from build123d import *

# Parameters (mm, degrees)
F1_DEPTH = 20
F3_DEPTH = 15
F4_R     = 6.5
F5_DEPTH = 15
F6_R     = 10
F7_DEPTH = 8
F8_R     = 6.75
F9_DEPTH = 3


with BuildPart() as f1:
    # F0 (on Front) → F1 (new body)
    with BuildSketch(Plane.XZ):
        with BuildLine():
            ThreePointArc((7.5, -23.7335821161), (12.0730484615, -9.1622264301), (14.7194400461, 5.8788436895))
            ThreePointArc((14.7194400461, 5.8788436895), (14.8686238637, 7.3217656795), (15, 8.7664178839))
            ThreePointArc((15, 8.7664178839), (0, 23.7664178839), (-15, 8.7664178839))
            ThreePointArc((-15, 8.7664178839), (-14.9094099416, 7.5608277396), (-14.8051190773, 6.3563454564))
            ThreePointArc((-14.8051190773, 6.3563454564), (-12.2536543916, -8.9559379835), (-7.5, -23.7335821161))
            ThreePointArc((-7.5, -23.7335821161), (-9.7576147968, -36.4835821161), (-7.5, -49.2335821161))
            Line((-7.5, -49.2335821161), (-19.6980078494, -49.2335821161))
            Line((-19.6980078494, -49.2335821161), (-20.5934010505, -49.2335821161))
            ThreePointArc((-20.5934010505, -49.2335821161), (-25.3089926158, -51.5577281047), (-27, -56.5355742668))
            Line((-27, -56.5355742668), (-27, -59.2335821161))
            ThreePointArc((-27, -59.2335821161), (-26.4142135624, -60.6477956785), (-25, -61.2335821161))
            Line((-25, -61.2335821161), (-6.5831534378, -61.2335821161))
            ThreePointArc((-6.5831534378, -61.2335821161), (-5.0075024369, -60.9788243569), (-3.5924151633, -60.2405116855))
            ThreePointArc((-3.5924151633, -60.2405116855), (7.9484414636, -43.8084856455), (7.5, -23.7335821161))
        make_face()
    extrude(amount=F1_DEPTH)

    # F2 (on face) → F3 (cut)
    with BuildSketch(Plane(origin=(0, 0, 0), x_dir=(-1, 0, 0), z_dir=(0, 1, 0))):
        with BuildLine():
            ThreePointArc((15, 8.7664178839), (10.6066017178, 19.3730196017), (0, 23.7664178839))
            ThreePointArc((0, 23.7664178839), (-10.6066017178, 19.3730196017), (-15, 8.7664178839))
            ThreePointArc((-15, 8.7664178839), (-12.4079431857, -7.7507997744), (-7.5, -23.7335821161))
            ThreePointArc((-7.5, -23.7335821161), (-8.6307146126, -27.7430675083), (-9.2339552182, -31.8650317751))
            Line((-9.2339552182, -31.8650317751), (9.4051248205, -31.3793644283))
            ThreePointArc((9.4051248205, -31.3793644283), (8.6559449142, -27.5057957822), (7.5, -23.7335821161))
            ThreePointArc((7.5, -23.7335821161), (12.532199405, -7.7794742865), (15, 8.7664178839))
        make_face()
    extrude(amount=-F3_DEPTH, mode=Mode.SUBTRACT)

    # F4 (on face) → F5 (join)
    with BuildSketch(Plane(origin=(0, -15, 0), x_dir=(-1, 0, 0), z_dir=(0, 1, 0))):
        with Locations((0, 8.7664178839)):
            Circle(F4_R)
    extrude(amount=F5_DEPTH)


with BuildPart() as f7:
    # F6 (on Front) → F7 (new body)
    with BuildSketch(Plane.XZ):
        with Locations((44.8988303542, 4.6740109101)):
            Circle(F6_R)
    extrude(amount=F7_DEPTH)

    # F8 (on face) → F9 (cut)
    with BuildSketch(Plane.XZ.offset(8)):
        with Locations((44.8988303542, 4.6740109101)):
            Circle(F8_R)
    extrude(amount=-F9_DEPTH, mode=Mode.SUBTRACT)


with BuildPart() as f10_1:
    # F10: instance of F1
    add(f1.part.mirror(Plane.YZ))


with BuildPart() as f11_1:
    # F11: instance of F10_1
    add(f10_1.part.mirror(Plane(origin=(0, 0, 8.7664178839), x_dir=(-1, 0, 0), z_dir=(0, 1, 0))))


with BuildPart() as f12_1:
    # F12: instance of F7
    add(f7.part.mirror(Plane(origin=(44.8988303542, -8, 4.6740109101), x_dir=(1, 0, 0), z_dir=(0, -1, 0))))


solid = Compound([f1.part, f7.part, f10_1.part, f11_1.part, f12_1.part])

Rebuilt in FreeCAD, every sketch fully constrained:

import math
import FreeCAD as App
import Part
import Sketcher

V = App.Vector
Q = App.Units.Quantity

doc = App.newDocument("Part")
body = doc.addObject("PartDesign::Body", "Body")

sketch1 = body.newObject("Sketcher::SketchObject", "Sketch")
sketch1.AttachmentSupport = (doc.getObject("XZ_Plane"), [""])
sketch1.MapMode = "FlatFace"
sketch1.addGeometry([
    Part.ArcOfCircle(Part.Circle(V(-102.193246, 18.695629, 0), V(0, 0, 1), 117.613121), math.radians(-21.146408), math.radians(-6.256181)),
    Part.ArcOfCircle(Part.Circle(V(-102.193245, 18.695628, 0), V(0, 0, 1), 117.61312), math.radians(-6.256181), math.radians(-4.842825)),
    Part.ArcOfCircle(Part.Circle(V(0, 8.766418, 0), V(0, 0, 1), 15), math.radians(0), math.radians(180)),
    Part.ArcOfCircle(Part.Circle(V(91.081377, 16.131351, 0), V(0, 0, 1), 106.336733), math.radians(-176.028487), math.radians(-174.725639)),
    Part.ArcOfCircle(Part.Circle(V(91.081378, 16.131351, 0), V(0, 0, 1), 106.336734), math.radians(-174.725639), math.radians(-157.982279)),
    Part.ArcOfCircle(Part.Circle(V(27.374345, -36.483582, 0), V(0, 0, 1), 37.13196), math.radians(159.917676), math.radians(200.082324)),
    Part.LineSegment(V(-7.5, -49.233582, 0), V(-20.593401, -49.233582, 0)),
    Part.ArcOfCircle(Part.Circle(V(-20.145704, -56.087878, 0), V(0, 0, 1), 6.868901), math.radians(93.737035), math.radians(183.737035)),
    Part.LineSegment(V(-27, -56.535574, 0), V(-27, -59.233582, 0)),
    Part.ArcOfCircle(Part.Circle(V(-25, -59.233582, 0), V(0, 0, 1), 2), math.radians(180), math.radians(270)),
    Part.LineSegment(V(-25, -61.233582, 0), V(-6.583153, -61.233582, 0)),
    Part.ArcOfCircle(Part.Circle(V(-6.583153, -56.233582, 0), V(0, 0, 1), 5), math.radians(-90), math.radians(-53.262652)),
    Part.ArcOfCircle(Part.Circle(V(-22.839415, -34.453777, 0), V(0, 0, 1), 32.177674), math.radians(-53.262652), math.radians(19.460463)),
], False)
sketch1.addConstraint([
    Sketcher.Constraint("Tangent", 0, 2, 1, 1),
    Sketcher.Constraint("Coincident", 1, 2, 2, 1),
    Sketcher.Constraint("Coincident", 2, 2, 3, 1),
    Sketcher.Constraint("Tangent", 3, 2, 4, 1),
    Sketcher.Constraint("Coincident", 4, 2, 5, 1),
    Sketcher.Constraint("Coincident", 5, 2, 6, 1),
    Sketcher.Constraint("Coincident", 6, 2, 7, 1),
    Sketcher.Constraint("Coincident", 7, 2, 8, 1),
    Sketcher.Constraint("Tangent", 8, 2, 9, 1),
    Sketcher.Constraint("Tangent", 9, 2, 10, 1),
    Sketcher.Constraint("Tangent", 10, 2, 11, 1),
    Sketcher.Constraint("Tangent", 11, 2, 12, 1),
    Sketcher.Constraint("Coincident", 12, 2, 0, 1),
    Sketcher.Constraint("Horizontal", 6),
    Sketcher.Constraint("Vertical", 8),
    Sketcher.Constraint("Horizontal", 10),
    Sketcher.Constraint("Equal", 0, 1),
    Sketcher.Constraint("Equal", 3, 4),
    Sketcher.Constraint("Symmetric", 1, 2, 2, 2, -2),
    Sketcher.Constraint("Symmetric", 4, 2, 12, 2, -2),
    Sketcher.Constraint("Horizontal", 2, 3, 1, 2),
    Sketcher.Constraint("Vertical", 4, 2, 5, 2),
    Sketcher.Constraint("Radius", 2, Q("15 mm")),
    Sketcher.Constraint("Radius", 9, Q("2 mm")),
    Sketcher.Constraint("Radius", 11, Q("5 mm")),
    Sketcher.Constraint("DistanceX", 9, 3, -1, 1, Q("25 mm")),
    Sketcher.Constraint("DistanceY", 9, 3, 2, 3, Q("68 mm")),
    Sketcher.Constraint("DistanceY", 11, 3, 5, 2, Q("7 mm")),
    Sketcher.Constraint("DistanceX", 4, 2, 12, 2, Q("15 mm")),
    Sketcher.Constraint("Radius", 7, Q("6.868901 mm")),
    Sketcher.Constraint("DistanceY", 11, 3, 4, 2, Q("32.5 mm")),
    Sketcher.Constraint("Radius", 0, Q("117.613121 mm")),
    Sketcher.Constraint("Radius", 5, Q("37.13196 mm")),
    Sketcher.Constraint("DistanceX", 6, 2, 6, 1, Q("13.093401 mm")),
    Sketcher.Constraint("Radius", 3, Q("106.336733 mm")),
    Sketcher.Constraint("Radius", 12, Q("32.177674 mm")),
    Sketcher.Constraint("DistanceX", 11, 3, 5, 3, Q("33.957499 mm")),
    Sketcher.Constraint("DistanceY", 7, 3, 12, 3, Q("21.634101 mm")),
    Sketcher.Constraint("DistanceY", 0, 2, 3, 2, Q("0.477502 mm")),
    Sketcher.Constraint("DistanceY", -1, 1, 0, 3, Q("18.695629 mm")),
    Sketcher.Constraint("DistanceX", -1, 1, 0, 2, Q("14.71944 mm")),
])
pad1 = body.newObject("PartDesign::Pad", "Pad")
pad1.Profile = sketch1
pad1.Length = 20

sketch2 = body.newObject("Sketcher::SketchObject", "Sketch001")
sketch2.AttachmentSupport = (doc.getObject("XZ_Plane"), [""])
sketch2.MapMode = "FlatFace"
sketch2.addGeometry([
    Part.ArcOfCircle(Part.Circle(V(0, 8.766418, 0), V(0, 0, 1), 15), math.radians(0), math.radians(180)),
    Part.ArcOfCircle(Part.Circle(V(-102.193246, 18.695629, 0), V(0, 0, 1), 117.613121), math.radians(-21.146408), math.radians(-4.842825)),
    Part.ArcOfCircle(Part.Circle(V(-22.839415, -34.453777, 0), V(0, 0, 1), 32.177674), math.radians(4.614524), math.radians(19.460463)),
    Part.LineSegment(V(9.233955, -31.865032, 0), V(-9.405125, -31.379364, 0)),
    Part.ArcOfCircle(Part.Circle(V(27.374345, -36.483582, 0), V(0, 0, 1), 37.13196), math.radians(159.917676), math.radians(172.099015)),
    Part.ArcOfCircle(Part.Circle(V(91.081378, 16.131351, 0), V(0, 0, 1), 106.336734), math.radians(-176.028487), math.radians(-157.982279)),
], False)
sketch2.addConstraint([
    Sketcher.Constraint("Coincident", 0, 1, 1, 2),
    Sketcher.Constraint("Coincident", 1, 1, 2, 2),
    Sketcher.Constraint("Coincident", 2, 1, 3, 1),
    Sketcher.Constraint("Coincident", 3, 2, 4, 2),
    Sketcher.Constraint("Coincident", 4, 1, 5, 2),
    Sketcher.Constraint("Coincident", 5, 1, 0, 2),
    Sketcher.Constraint("Symmetric", 1, 1, 4, 1, -2),
    Sketcher.Constraint("Symmetric", 0, 1, 5, 1, -2),
    Sketcher.Constraint("Radius", 0, Q("15 mm")),
    Sketcher.Constraint("DistanceX", 4, 1, 1, 1, Q("15 mm")),
    Sketcher.Constraint("DistanceY", 1, 1, 0, 1, Q("32.5 mm")),
    Sketcher.Constraint("DistanceY", 1, 1, 0, 3, Q("32.5 mm")),
    Sketcher.Constraint("Radius", 1, Q("117.613121 mm")),
    Sketcher.Constraint("Radius", 4, Q("37.13196 mm")),
    Sketcher.Constraint("DistanceY", 4, 3, 0, 3, Q("45.25 mm")),
    Sketcher.Constraint("Radius", 2, Q("32.177674 mm")),
    Sketcher.Constraint("Radius", 5, Q("106.336734 mm")),
    Sketcher.Constraint("DistanceY", -1, 1, 1, 3, Q("18.695629 mm")),
    Sketcher.Constraint("DistanceY", 2, 1, -1, 1, Q("31.865032 mm")),
    Sketcher.Constraint("DistanceX", 1, 3, 2, 3, Q("79.353831 mm")),
    Sketcher.Constraint("DistanceX", 2, 3, 3, 2, Q("13.434291 mm")),
])
pocket1 = body.newObject("PartDesign::Pocket", "Pocket")
pocket1.Profile = sketch2
pocket1.Length = 15
pocket1.Reversed = True

sketch3 = body.newObject("Sketcher::SketchObject", "Sketch002")
sketch3.AttachmentSupport = (doc.getObject("XZ_Plane"), [""])
sketch3.MapMode = "FlatFace"
sketch3.AttachmentOffset = App.Placement(V(0, 0, 15), App.Rotation())
sketch3.addGeometry(Part.Circle(V(0, 8.766418, 0), V(0, 0, 1), 6.5), False)
sketch3.addConstraint([
    Sketcher.Constraint("PointOnObject", 0, 3, -2),
    Sketcher.Constraint("Diameter", 0, Q("13 mm")),
    Sketcher.Constraint("DistanceY", -1, 1, 0, 3, Q("8.766418 mm")),
])
pad2 = body.newObject("PartDesign::Pad", "Pad001")
pad2.Profile = sketch3
pad2.Length = 15
pad2.Reversed = True
body2 = doc.addObject("PartDesign::Body", "Body001")

sketch4 = body2.newObject("Sketcher::SketchObject", "Sketch003")
sketch4.AttachmentSupport = (doc.getObject("XZ_Plane001"), [""])
sketch4.MapMode = "FlatFace"
sketch4.addGeometry(Part.Circle(V(44.89883, 4.674011, 0), V(0, 0, 1), 10), False)
sketch4.addConstraint([
    Sketcher.Constraint("Diameter", 0, Q("20 mm")),
    Sketcher.Constraint("DistanceX", -1, 1, 0, 3, Q("44.89883 mm")),
    Sketcher.Constraint("DistanceY", -1, 1, 0, 3, Q("4.674011 mm")),
])
pad3 = body2.newObject("PartDesign::Pad", "Pad002")
pad3.Profile = sketch4
pad3.Length = 8

sketch5 = body2.newObject("Sketcher::SketchObject", "Sketch004")
sketch5.AttachmentSupport = (doc.getObject("XZ_Plane001"), [""])
sketch5.MapMode = "FlatFace"
sketch5.AttachmentOffset = App.Placement(V(0, 0, 8), App.Rotation())
sketch5.addGeometry(Part.Circle(V(44.89883, 4.674011, 0), V(0, 0, 1), 6.75), False)
sketch5.addConstraint([
    Sketcher.Constraint("Diameter", 0, Q("13.5 mm")),
    Sketcher.Constraint("DistanceX", -1, 1, 0, 3, Q("44.89883 mm")),
    Sketcher.Constraint("DistanceY", -1, 1, 0, 3, Q("4.674011 mm")),
])
pocket2 = body2.newObject("PartDesign::Pocket", "Pocket001")
pocket2.Profile = sketch5
pocket2.Length = 3
body3 = doc.addObject("PartDesign::Body", "Body002")
doc.recompute()

mirroring = doc.addObject("Part::Mirroring", "Mirroring")
mirroring.Source = body
mirroring.Base = V(0, 0, 0)
mirroring.Normal = V(1, 0, 0)
body3.BaseFeature = mirroring
doc.recompute()
body4 = doc.addObject("PartDesign::Body", "Body003")
doc.recompute()

mirroring2 = doc.addObject("Part::Mirroring", "Mirroring001")
mirroring2.Source = body3
mirroring2.Base = V(0, 0, 8.766418)
mirroring2.Normal = V(0, 1, 0)
body4.BaseFeature = mirroring2
doc.recompute()
body5 = doc.addObject("PartDesign::Body", "Body004")
doc.recompute()

mirroring3 = doc.addObject("Part::Mirroring", "Mirroring002")
mirroring3.Source = body2
mirroring3.Base = V(44.89883, -8, 4.674011)
mirroring3.Normal = V(0, -1, 0)
body5.BaseFeature = mirroring3
doc.recompute()
mirroring.Visibility = False
mirroring2.Visibility = False
mirroring3.Visibility = False

doc.recompute()
